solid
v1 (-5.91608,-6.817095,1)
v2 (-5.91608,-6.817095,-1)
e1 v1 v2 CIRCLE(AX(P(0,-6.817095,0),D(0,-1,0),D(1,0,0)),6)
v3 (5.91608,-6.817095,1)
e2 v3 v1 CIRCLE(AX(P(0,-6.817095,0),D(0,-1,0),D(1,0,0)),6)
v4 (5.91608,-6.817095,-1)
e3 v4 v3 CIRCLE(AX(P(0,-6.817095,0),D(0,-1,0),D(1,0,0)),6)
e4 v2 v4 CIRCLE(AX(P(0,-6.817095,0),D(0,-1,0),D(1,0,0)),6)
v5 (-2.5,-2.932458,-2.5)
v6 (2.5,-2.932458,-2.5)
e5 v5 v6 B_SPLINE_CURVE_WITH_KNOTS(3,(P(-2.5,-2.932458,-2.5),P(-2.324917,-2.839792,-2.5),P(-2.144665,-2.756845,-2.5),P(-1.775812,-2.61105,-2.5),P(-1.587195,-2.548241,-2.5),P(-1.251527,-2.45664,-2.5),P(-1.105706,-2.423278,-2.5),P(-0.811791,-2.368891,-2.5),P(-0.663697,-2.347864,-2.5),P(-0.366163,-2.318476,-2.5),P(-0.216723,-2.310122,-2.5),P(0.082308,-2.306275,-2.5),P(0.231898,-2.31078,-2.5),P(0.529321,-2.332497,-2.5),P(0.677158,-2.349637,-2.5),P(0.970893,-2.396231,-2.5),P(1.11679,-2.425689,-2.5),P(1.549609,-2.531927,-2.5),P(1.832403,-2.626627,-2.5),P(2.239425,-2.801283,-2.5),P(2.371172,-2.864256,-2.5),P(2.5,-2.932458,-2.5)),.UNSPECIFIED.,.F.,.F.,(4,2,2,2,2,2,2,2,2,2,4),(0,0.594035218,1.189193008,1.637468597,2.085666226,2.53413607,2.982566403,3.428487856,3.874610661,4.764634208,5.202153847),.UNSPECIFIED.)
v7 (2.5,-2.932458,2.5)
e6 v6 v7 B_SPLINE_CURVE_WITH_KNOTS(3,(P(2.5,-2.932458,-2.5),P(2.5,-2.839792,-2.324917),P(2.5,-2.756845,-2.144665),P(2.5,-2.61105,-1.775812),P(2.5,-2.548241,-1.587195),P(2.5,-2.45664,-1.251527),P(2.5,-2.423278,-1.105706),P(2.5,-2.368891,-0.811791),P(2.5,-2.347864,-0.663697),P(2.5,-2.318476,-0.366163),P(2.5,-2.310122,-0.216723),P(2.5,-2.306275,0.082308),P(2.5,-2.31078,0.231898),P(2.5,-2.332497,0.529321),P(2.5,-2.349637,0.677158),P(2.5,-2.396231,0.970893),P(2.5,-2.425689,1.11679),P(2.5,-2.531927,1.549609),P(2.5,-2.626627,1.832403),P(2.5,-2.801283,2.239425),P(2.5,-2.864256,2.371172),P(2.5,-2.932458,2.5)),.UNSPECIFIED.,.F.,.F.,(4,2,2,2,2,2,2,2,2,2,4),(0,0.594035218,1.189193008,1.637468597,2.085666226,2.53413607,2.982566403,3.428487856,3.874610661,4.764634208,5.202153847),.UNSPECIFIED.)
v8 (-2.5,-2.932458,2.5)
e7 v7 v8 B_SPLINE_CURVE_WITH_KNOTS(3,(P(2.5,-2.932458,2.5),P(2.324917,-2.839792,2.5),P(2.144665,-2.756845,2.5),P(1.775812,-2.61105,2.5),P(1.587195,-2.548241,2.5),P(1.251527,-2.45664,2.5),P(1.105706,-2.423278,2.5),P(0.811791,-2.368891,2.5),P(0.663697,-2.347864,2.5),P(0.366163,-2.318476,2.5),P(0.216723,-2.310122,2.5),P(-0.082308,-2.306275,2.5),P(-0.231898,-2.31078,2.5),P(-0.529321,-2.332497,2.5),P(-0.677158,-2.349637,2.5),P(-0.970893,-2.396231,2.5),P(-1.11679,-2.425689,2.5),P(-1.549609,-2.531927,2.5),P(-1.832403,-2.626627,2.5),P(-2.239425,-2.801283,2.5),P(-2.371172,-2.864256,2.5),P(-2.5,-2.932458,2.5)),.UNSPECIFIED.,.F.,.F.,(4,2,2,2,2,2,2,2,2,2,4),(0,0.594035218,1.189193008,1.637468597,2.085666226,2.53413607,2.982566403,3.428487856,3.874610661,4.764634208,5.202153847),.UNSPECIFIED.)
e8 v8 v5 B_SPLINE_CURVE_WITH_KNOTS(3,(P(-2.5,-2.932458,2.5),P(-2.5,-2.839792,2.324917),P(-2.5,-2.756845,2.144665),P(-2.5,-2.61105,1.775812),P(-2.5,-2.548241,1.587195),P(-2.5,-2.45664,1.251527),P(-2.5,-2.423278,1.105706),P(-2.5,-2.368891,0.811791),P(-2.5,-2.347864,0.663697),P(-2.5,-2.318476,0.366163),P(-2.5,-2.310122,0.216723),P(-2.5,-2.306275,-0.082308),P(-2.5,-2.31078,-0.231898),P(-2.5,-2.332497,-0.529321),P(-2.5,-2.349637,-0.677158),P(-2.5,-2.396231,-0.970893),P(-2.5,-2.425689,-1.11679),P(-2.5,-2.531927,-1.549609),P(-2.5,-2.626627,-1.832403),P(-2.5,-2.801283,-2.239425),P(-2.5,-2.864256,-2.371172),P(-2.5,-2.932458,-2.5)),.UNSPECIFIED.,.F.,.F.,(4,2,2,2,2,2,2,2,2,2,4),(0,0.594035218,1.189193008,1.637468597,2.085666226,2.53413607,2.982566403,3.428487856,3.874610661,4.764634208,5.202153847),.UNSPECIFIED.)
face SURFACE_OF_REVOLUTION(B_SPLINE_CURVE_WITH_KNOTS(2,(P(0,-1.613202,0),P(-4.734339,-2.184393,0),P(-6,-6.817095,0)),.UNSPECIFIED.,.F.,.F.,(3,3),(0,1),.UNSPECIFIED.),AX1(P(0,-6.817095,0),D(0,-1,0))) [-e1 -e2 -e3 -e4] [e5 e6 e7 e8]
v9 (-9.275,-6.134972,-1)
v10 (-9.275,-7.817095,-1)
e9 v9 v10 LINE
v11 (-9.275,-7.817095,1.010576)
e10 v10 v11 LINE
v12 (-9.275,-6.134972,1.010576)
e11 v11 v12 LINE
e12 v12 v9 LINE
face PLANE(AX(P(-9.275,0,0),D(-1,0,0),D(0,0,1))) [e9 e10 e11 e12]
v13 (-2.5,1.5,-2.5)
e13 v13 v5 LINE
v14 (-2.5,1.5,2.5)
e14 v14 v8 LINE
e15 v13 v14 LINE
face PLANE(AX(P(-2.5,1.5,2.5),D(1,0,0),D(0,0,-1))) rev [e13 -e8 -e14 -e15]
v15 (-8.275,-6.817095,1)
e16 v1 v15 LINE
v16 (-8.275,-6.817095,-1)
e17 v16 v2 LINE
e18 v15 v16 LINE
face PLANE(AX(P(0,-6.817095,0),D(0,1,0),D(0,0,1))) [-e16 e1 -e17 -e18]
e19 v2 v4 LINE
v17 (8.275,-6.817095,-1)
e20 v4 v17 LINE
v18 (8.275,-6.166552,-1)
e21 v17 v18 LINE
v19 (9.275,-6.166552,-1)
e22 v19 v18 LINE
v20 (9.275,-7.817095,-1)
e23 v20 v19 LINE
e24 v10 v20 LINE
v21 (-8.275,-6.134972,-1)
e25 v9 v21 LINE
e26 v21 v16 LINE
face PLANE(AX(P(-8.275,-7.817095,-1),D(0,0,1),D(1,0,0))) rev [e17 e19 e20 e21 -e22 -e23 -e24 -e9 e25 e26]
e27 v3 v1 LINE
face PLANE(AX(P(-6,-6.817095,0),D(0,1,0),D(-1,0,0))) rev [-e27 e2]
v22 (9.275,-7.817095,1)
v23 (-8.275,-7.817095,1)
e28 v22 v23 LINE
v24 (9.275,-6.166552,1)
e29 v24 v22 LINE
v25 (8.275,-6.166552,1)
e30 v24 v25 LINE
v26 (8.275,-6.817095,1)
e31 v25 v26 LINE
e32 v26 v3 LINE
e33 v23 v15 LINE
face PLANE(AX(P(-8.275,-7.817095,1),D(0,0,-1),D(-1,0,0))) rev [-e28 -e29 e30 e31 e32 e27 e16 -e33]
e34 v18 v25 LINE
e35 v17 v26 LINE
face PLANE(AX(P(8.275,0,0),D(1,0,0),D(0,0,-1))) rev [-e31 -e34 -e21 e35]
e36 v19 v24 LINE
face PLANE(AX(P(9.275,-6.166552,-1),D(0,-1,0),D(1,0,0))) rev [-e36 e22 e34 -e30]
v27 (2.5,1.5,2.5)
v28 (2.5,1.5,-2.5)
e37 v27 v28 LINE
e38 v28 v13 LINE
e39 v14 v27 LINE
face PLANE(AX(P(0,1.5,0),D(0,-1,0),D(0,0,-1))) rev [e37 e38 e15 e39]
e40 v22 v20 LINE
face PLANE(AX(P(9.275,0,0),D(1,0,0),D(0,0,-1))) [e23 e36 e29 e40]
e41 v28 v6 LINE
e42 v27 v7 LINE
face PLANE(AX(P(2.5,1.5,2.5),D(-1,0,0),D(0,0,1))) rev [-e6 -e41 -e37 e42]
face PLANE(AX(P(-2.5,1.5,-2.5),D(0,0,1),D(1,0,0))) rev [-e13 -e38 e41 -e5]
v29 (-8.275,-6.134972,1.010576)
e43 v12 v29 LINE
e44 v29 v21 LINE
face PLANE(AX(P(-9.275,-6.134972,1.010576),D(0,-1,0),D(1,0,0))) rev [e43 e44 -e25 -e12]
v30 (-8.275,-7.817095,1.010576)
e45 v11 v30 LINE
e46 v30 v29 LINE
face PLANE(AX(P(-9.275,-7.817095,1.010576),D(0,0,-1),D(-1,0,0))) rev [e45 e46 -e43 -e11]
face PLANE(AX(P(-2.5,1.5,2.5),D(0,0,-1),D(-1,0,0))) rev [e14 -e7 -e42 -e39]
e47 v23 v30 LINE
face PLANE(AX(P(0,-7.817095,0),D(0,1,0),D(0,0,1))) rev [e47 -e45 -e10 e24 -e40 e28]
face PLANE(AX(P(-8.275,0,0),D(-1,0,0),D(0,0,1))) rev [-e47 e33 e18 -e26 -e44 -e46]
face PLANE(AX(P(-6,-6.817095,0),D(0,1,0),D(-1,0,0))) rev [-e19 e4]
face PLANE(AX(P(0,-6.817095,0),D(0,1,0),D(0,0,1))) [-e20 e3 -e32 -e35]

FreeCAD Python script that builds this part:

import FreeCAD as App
import Part
import Sketcher
from FreeCAD import Vector
Q = App.Units.Quantity


def add_polygon(sketch, points):
    """Adds a closed chain of lines whose ends are joined by coincident constraints."""
    first, n = sketch.GeometryCount, len(points)
    for a, b in zip(points, points[1:] + points[:1]):
        sketch.addGeometry(Part.LineSegment(App.Vector(*a, 0), App.Vector(*b, 0)), False)
    for i in range(n):
        sketch.addConstraint(Sketcher.Constraint("Coincident", first + i, 2, first + (i + 1) % n, 1))

doc = App.newDocument("Part")
body = doc.addObject("PartDesign::Body", "Body")

# Sketch on XZ plane
sketch1 = body.newObject("Sketcher::SketchObject", "Sketch")
sketch1.AttachmentSupport = (doc.getObject("XZ_Plane"), [""])
sketch1.MapMode = "FlatFace"
add_polygon(sketch1, [(-2.5, -2.5), (-2.5, 2.5), (2.5, 2.5), (2.5, -2.5)])  # lines 0-3
sketch1.addConstraint(Sketcher.Constraint("Vertical", 0))
sketch1.addConstraint(Sketcher.Constraint("Horizontal", 1))
sketch1.addConstraint(Sketcher.Constraint("Vertical", 2))
sketch1.addConstraint(Sketcher.Constraint("Horizontal", 3))
sketch1.addConstraint(Sketcher.Constraint("Symmetric", 0, 2, 2, 2, -1, 1))
sketch1.addConstraint(Sketcher.Constraint("Equal", 3, 0))
sketch1.addConstraint(Sketcher.Constraint("DistanceX", 1, 1, 1, 2, Q("5 mm")))
pad1 = body.newObject("PartDesign::Pad", "Pad")
pad1.Profile = sketch1
pad1.Type = "TwoLengths"
pad1.Length = 1.5
pad1.Length2 = 3
pad1.Reversed = True

# Sketch on XY plane
sketch2 = body.newObject("Sketcher::SketchObject", "Sketch001")
sketch2.AttachmentSupport = (doc.getObject("XY_Plane"), [""])
sketch2.MapMode = "FlatFace"
sketch2.addGeometry(Part.LineSegment(Vector(-6, -6.817095, 0), Vector(0, -6.817095, 0)), False)
sketch2.addGeometry(Part.LineSegment(Vector(0, -6.817095, 0), Vector(0, -1.613202, 0)), False)
sketch2.addGeometry(Part.BSplineCurve([Vector(-6, -6.817095, 0), Vector(-4.734339, -2.184393, 0), Vector(0, -1.613202, 0)], [3, 3], [0, 1], False, 2, [1, 1, 1], False), False)
sketch2.addConstraint(Sketcher.Constraint("Block", 2))
sketch2.addConstraint(Sketcher.Constraint("Coincident", 0, 2, 1, 1))
sketch2.addConstraint(Sketcher.Constraint("Coincident", 1, 2, 2, 2))
sketch2.addConstraint(Sketcher.Constraint("Coincident", 2, 1, 0, 1))
sketch2.addConstraint(Sketcher.Constraint("Horizontal", 0))
sketch2.addConstraint(Sketcher.Constraint("Vertical", 1))
revolution = body.newObject("PartDesign::Revolution", "Revolution")
revolution.Profile = sketch2
revolution.ReferenceAxis = (sketch2, ["V_Axis"])
revolution.Angle = 360

# Sketch on XZ plane
sketch3 = body.newObject("Sketcher::SketchObject", "Sketch002")
sketch3.AttachmentSupport = (doc.getObject("XZ_Plane"), [""])
sketch3.MapMode = "FlatFace"
sketch3.AttachmentOffset = App.Placement(Vector(0, 0, 6.817095), App.Rotation())
add_polygon(sketch3, [(-8.275, 1), (-8.275, -1), (8.275, -1), (8.275, 1)])  # lines 0-3
sketch3.addConstraint(Sketcher.Constraint("Vertical", 0))
sketch3.addConstraint(Sketcher.Constraint("Horizontal", 1))
sketch3.addConstraint(Sketcher.Constraint("Vertical", 2))
sketch3.addConstraint(Sketcher.Constraint("Horizontal", 3))
sketch3.addConstraint(Sketcher.Constraint("Symmetric", 0, 2, 2, 2, -1, 1))
sketch3.addConstraint(Sketcher.Constraint("DistanceY", 0, 2, 0, 1, Q("2 mm")))
sketch3.addConstraint(Sketcher.Constraint("DistanceX", 1, 1, 1, 2, Q("16.55 mm")))
pad2 = body.newObject("PartDesign::Pad", "Pad001")
pad2.Profile = sketch3
pad2.Length = 1

# Sketch on YZ plane
sketch4 = body.newObject("Sketcher::SketchObject", "Sketch003")
sketch4.AttachmentSupport = (doc.getObject("YZ_Plane"), [""])
sketch4.MapMode = "FlatFace"
sketch4.AttachmentOffset = App.Placement(Vector(0, 0, -8.275), App.Rotation())
add_polygon(sketch4, [(-6.134972, -1), (-7.817095, -1), (-7.817095, 1.010576), (-6.134972, 1.010576)])  # lines 0-3
sketch4.addConstraint(Sketcher.Constraint("Horizontal", 0))
sketch4.addConstraint(Sketcher.Constraint("Vertical", 1))
sketch4.addConstraint(Sketcher.Constraint("Horizontal", 2))
sketch4.addConstraint(Sketcher.Constraint("Vertical", 3))
sketch4.addConstraint(Sketcher.Constraint("DistanceY", 0, 2, -1, 1, Q("1 mm")))
sketch4.addConstraint(Sketcher.Constraint("DistanceX", 0, 2, 0, 1, Q("1.682123 mm")))
sketch4.addConstraint(Sketcher.Constraint("DistanceY", 1, 1, 1, 2, Q("2.010576 mm")))
sketch4.addConstraint(Sketcher.Constraint("DistanceX", 2, 2, -1, 1, Q("6.134972 mm")))
pad3 = body.newObject("PartDesign::Pad", "Pad002")
pad3.Profile = sketch4
pad3.Length = 1
pad3.Reversed = True

# Sketch on YZ plane
sketch5 = body.newObject("Sketcher::SketchObject", "Sketch004")
sketch5.AttachmentSupport = (doc.getObject("YZ_Plane"), [""])
sketch5.MapMode = "FlatFace"
sketch5.AttachmentOffset = App.Placement(Vector(0, 0, 8.275), App.Rotation())
add_polygon(sketch5, [(-6.166552, 1), (-7.817095, 1), (-7.817095, -1), (-6.166552, -1)])  # lines 0-3
sketch5.addConstraint(Sketcher.Constraint("Horizontal", 0))
sketch5.addConstraint(Sketcher.Constraint("Vertical", 1))
sketch5.addConstraint(Sketcher.Constraint("Horizontal", 2))
sketch5.addConstraint(Sketcher.Constraint("Vertical", 3))
sketch5.addConstraint(Sketcher.Constraint("DistanceY", 1, 2, 1, 1, Q("2 mm")))
sketch5.addConstraint(Sketcher.Constraint("DistanceY", -1, 1, 0, 2, Q("1 mm")))
sketch5.addConstraint(Sketcher.Constraint("DistanceX", 0, 2, 0, 1, Q("1.650542 mm")))
sketch5.addConstraint(Sketcher.Constraint("DistanceX", 0, 2, -1, 1, Q("7.817095 mm")))
pad4 = body.newObject("PartDesign::Pad", "Pad003")
pad4.Profile = sketch5
pad4.Length = 1

doc.recompute()
